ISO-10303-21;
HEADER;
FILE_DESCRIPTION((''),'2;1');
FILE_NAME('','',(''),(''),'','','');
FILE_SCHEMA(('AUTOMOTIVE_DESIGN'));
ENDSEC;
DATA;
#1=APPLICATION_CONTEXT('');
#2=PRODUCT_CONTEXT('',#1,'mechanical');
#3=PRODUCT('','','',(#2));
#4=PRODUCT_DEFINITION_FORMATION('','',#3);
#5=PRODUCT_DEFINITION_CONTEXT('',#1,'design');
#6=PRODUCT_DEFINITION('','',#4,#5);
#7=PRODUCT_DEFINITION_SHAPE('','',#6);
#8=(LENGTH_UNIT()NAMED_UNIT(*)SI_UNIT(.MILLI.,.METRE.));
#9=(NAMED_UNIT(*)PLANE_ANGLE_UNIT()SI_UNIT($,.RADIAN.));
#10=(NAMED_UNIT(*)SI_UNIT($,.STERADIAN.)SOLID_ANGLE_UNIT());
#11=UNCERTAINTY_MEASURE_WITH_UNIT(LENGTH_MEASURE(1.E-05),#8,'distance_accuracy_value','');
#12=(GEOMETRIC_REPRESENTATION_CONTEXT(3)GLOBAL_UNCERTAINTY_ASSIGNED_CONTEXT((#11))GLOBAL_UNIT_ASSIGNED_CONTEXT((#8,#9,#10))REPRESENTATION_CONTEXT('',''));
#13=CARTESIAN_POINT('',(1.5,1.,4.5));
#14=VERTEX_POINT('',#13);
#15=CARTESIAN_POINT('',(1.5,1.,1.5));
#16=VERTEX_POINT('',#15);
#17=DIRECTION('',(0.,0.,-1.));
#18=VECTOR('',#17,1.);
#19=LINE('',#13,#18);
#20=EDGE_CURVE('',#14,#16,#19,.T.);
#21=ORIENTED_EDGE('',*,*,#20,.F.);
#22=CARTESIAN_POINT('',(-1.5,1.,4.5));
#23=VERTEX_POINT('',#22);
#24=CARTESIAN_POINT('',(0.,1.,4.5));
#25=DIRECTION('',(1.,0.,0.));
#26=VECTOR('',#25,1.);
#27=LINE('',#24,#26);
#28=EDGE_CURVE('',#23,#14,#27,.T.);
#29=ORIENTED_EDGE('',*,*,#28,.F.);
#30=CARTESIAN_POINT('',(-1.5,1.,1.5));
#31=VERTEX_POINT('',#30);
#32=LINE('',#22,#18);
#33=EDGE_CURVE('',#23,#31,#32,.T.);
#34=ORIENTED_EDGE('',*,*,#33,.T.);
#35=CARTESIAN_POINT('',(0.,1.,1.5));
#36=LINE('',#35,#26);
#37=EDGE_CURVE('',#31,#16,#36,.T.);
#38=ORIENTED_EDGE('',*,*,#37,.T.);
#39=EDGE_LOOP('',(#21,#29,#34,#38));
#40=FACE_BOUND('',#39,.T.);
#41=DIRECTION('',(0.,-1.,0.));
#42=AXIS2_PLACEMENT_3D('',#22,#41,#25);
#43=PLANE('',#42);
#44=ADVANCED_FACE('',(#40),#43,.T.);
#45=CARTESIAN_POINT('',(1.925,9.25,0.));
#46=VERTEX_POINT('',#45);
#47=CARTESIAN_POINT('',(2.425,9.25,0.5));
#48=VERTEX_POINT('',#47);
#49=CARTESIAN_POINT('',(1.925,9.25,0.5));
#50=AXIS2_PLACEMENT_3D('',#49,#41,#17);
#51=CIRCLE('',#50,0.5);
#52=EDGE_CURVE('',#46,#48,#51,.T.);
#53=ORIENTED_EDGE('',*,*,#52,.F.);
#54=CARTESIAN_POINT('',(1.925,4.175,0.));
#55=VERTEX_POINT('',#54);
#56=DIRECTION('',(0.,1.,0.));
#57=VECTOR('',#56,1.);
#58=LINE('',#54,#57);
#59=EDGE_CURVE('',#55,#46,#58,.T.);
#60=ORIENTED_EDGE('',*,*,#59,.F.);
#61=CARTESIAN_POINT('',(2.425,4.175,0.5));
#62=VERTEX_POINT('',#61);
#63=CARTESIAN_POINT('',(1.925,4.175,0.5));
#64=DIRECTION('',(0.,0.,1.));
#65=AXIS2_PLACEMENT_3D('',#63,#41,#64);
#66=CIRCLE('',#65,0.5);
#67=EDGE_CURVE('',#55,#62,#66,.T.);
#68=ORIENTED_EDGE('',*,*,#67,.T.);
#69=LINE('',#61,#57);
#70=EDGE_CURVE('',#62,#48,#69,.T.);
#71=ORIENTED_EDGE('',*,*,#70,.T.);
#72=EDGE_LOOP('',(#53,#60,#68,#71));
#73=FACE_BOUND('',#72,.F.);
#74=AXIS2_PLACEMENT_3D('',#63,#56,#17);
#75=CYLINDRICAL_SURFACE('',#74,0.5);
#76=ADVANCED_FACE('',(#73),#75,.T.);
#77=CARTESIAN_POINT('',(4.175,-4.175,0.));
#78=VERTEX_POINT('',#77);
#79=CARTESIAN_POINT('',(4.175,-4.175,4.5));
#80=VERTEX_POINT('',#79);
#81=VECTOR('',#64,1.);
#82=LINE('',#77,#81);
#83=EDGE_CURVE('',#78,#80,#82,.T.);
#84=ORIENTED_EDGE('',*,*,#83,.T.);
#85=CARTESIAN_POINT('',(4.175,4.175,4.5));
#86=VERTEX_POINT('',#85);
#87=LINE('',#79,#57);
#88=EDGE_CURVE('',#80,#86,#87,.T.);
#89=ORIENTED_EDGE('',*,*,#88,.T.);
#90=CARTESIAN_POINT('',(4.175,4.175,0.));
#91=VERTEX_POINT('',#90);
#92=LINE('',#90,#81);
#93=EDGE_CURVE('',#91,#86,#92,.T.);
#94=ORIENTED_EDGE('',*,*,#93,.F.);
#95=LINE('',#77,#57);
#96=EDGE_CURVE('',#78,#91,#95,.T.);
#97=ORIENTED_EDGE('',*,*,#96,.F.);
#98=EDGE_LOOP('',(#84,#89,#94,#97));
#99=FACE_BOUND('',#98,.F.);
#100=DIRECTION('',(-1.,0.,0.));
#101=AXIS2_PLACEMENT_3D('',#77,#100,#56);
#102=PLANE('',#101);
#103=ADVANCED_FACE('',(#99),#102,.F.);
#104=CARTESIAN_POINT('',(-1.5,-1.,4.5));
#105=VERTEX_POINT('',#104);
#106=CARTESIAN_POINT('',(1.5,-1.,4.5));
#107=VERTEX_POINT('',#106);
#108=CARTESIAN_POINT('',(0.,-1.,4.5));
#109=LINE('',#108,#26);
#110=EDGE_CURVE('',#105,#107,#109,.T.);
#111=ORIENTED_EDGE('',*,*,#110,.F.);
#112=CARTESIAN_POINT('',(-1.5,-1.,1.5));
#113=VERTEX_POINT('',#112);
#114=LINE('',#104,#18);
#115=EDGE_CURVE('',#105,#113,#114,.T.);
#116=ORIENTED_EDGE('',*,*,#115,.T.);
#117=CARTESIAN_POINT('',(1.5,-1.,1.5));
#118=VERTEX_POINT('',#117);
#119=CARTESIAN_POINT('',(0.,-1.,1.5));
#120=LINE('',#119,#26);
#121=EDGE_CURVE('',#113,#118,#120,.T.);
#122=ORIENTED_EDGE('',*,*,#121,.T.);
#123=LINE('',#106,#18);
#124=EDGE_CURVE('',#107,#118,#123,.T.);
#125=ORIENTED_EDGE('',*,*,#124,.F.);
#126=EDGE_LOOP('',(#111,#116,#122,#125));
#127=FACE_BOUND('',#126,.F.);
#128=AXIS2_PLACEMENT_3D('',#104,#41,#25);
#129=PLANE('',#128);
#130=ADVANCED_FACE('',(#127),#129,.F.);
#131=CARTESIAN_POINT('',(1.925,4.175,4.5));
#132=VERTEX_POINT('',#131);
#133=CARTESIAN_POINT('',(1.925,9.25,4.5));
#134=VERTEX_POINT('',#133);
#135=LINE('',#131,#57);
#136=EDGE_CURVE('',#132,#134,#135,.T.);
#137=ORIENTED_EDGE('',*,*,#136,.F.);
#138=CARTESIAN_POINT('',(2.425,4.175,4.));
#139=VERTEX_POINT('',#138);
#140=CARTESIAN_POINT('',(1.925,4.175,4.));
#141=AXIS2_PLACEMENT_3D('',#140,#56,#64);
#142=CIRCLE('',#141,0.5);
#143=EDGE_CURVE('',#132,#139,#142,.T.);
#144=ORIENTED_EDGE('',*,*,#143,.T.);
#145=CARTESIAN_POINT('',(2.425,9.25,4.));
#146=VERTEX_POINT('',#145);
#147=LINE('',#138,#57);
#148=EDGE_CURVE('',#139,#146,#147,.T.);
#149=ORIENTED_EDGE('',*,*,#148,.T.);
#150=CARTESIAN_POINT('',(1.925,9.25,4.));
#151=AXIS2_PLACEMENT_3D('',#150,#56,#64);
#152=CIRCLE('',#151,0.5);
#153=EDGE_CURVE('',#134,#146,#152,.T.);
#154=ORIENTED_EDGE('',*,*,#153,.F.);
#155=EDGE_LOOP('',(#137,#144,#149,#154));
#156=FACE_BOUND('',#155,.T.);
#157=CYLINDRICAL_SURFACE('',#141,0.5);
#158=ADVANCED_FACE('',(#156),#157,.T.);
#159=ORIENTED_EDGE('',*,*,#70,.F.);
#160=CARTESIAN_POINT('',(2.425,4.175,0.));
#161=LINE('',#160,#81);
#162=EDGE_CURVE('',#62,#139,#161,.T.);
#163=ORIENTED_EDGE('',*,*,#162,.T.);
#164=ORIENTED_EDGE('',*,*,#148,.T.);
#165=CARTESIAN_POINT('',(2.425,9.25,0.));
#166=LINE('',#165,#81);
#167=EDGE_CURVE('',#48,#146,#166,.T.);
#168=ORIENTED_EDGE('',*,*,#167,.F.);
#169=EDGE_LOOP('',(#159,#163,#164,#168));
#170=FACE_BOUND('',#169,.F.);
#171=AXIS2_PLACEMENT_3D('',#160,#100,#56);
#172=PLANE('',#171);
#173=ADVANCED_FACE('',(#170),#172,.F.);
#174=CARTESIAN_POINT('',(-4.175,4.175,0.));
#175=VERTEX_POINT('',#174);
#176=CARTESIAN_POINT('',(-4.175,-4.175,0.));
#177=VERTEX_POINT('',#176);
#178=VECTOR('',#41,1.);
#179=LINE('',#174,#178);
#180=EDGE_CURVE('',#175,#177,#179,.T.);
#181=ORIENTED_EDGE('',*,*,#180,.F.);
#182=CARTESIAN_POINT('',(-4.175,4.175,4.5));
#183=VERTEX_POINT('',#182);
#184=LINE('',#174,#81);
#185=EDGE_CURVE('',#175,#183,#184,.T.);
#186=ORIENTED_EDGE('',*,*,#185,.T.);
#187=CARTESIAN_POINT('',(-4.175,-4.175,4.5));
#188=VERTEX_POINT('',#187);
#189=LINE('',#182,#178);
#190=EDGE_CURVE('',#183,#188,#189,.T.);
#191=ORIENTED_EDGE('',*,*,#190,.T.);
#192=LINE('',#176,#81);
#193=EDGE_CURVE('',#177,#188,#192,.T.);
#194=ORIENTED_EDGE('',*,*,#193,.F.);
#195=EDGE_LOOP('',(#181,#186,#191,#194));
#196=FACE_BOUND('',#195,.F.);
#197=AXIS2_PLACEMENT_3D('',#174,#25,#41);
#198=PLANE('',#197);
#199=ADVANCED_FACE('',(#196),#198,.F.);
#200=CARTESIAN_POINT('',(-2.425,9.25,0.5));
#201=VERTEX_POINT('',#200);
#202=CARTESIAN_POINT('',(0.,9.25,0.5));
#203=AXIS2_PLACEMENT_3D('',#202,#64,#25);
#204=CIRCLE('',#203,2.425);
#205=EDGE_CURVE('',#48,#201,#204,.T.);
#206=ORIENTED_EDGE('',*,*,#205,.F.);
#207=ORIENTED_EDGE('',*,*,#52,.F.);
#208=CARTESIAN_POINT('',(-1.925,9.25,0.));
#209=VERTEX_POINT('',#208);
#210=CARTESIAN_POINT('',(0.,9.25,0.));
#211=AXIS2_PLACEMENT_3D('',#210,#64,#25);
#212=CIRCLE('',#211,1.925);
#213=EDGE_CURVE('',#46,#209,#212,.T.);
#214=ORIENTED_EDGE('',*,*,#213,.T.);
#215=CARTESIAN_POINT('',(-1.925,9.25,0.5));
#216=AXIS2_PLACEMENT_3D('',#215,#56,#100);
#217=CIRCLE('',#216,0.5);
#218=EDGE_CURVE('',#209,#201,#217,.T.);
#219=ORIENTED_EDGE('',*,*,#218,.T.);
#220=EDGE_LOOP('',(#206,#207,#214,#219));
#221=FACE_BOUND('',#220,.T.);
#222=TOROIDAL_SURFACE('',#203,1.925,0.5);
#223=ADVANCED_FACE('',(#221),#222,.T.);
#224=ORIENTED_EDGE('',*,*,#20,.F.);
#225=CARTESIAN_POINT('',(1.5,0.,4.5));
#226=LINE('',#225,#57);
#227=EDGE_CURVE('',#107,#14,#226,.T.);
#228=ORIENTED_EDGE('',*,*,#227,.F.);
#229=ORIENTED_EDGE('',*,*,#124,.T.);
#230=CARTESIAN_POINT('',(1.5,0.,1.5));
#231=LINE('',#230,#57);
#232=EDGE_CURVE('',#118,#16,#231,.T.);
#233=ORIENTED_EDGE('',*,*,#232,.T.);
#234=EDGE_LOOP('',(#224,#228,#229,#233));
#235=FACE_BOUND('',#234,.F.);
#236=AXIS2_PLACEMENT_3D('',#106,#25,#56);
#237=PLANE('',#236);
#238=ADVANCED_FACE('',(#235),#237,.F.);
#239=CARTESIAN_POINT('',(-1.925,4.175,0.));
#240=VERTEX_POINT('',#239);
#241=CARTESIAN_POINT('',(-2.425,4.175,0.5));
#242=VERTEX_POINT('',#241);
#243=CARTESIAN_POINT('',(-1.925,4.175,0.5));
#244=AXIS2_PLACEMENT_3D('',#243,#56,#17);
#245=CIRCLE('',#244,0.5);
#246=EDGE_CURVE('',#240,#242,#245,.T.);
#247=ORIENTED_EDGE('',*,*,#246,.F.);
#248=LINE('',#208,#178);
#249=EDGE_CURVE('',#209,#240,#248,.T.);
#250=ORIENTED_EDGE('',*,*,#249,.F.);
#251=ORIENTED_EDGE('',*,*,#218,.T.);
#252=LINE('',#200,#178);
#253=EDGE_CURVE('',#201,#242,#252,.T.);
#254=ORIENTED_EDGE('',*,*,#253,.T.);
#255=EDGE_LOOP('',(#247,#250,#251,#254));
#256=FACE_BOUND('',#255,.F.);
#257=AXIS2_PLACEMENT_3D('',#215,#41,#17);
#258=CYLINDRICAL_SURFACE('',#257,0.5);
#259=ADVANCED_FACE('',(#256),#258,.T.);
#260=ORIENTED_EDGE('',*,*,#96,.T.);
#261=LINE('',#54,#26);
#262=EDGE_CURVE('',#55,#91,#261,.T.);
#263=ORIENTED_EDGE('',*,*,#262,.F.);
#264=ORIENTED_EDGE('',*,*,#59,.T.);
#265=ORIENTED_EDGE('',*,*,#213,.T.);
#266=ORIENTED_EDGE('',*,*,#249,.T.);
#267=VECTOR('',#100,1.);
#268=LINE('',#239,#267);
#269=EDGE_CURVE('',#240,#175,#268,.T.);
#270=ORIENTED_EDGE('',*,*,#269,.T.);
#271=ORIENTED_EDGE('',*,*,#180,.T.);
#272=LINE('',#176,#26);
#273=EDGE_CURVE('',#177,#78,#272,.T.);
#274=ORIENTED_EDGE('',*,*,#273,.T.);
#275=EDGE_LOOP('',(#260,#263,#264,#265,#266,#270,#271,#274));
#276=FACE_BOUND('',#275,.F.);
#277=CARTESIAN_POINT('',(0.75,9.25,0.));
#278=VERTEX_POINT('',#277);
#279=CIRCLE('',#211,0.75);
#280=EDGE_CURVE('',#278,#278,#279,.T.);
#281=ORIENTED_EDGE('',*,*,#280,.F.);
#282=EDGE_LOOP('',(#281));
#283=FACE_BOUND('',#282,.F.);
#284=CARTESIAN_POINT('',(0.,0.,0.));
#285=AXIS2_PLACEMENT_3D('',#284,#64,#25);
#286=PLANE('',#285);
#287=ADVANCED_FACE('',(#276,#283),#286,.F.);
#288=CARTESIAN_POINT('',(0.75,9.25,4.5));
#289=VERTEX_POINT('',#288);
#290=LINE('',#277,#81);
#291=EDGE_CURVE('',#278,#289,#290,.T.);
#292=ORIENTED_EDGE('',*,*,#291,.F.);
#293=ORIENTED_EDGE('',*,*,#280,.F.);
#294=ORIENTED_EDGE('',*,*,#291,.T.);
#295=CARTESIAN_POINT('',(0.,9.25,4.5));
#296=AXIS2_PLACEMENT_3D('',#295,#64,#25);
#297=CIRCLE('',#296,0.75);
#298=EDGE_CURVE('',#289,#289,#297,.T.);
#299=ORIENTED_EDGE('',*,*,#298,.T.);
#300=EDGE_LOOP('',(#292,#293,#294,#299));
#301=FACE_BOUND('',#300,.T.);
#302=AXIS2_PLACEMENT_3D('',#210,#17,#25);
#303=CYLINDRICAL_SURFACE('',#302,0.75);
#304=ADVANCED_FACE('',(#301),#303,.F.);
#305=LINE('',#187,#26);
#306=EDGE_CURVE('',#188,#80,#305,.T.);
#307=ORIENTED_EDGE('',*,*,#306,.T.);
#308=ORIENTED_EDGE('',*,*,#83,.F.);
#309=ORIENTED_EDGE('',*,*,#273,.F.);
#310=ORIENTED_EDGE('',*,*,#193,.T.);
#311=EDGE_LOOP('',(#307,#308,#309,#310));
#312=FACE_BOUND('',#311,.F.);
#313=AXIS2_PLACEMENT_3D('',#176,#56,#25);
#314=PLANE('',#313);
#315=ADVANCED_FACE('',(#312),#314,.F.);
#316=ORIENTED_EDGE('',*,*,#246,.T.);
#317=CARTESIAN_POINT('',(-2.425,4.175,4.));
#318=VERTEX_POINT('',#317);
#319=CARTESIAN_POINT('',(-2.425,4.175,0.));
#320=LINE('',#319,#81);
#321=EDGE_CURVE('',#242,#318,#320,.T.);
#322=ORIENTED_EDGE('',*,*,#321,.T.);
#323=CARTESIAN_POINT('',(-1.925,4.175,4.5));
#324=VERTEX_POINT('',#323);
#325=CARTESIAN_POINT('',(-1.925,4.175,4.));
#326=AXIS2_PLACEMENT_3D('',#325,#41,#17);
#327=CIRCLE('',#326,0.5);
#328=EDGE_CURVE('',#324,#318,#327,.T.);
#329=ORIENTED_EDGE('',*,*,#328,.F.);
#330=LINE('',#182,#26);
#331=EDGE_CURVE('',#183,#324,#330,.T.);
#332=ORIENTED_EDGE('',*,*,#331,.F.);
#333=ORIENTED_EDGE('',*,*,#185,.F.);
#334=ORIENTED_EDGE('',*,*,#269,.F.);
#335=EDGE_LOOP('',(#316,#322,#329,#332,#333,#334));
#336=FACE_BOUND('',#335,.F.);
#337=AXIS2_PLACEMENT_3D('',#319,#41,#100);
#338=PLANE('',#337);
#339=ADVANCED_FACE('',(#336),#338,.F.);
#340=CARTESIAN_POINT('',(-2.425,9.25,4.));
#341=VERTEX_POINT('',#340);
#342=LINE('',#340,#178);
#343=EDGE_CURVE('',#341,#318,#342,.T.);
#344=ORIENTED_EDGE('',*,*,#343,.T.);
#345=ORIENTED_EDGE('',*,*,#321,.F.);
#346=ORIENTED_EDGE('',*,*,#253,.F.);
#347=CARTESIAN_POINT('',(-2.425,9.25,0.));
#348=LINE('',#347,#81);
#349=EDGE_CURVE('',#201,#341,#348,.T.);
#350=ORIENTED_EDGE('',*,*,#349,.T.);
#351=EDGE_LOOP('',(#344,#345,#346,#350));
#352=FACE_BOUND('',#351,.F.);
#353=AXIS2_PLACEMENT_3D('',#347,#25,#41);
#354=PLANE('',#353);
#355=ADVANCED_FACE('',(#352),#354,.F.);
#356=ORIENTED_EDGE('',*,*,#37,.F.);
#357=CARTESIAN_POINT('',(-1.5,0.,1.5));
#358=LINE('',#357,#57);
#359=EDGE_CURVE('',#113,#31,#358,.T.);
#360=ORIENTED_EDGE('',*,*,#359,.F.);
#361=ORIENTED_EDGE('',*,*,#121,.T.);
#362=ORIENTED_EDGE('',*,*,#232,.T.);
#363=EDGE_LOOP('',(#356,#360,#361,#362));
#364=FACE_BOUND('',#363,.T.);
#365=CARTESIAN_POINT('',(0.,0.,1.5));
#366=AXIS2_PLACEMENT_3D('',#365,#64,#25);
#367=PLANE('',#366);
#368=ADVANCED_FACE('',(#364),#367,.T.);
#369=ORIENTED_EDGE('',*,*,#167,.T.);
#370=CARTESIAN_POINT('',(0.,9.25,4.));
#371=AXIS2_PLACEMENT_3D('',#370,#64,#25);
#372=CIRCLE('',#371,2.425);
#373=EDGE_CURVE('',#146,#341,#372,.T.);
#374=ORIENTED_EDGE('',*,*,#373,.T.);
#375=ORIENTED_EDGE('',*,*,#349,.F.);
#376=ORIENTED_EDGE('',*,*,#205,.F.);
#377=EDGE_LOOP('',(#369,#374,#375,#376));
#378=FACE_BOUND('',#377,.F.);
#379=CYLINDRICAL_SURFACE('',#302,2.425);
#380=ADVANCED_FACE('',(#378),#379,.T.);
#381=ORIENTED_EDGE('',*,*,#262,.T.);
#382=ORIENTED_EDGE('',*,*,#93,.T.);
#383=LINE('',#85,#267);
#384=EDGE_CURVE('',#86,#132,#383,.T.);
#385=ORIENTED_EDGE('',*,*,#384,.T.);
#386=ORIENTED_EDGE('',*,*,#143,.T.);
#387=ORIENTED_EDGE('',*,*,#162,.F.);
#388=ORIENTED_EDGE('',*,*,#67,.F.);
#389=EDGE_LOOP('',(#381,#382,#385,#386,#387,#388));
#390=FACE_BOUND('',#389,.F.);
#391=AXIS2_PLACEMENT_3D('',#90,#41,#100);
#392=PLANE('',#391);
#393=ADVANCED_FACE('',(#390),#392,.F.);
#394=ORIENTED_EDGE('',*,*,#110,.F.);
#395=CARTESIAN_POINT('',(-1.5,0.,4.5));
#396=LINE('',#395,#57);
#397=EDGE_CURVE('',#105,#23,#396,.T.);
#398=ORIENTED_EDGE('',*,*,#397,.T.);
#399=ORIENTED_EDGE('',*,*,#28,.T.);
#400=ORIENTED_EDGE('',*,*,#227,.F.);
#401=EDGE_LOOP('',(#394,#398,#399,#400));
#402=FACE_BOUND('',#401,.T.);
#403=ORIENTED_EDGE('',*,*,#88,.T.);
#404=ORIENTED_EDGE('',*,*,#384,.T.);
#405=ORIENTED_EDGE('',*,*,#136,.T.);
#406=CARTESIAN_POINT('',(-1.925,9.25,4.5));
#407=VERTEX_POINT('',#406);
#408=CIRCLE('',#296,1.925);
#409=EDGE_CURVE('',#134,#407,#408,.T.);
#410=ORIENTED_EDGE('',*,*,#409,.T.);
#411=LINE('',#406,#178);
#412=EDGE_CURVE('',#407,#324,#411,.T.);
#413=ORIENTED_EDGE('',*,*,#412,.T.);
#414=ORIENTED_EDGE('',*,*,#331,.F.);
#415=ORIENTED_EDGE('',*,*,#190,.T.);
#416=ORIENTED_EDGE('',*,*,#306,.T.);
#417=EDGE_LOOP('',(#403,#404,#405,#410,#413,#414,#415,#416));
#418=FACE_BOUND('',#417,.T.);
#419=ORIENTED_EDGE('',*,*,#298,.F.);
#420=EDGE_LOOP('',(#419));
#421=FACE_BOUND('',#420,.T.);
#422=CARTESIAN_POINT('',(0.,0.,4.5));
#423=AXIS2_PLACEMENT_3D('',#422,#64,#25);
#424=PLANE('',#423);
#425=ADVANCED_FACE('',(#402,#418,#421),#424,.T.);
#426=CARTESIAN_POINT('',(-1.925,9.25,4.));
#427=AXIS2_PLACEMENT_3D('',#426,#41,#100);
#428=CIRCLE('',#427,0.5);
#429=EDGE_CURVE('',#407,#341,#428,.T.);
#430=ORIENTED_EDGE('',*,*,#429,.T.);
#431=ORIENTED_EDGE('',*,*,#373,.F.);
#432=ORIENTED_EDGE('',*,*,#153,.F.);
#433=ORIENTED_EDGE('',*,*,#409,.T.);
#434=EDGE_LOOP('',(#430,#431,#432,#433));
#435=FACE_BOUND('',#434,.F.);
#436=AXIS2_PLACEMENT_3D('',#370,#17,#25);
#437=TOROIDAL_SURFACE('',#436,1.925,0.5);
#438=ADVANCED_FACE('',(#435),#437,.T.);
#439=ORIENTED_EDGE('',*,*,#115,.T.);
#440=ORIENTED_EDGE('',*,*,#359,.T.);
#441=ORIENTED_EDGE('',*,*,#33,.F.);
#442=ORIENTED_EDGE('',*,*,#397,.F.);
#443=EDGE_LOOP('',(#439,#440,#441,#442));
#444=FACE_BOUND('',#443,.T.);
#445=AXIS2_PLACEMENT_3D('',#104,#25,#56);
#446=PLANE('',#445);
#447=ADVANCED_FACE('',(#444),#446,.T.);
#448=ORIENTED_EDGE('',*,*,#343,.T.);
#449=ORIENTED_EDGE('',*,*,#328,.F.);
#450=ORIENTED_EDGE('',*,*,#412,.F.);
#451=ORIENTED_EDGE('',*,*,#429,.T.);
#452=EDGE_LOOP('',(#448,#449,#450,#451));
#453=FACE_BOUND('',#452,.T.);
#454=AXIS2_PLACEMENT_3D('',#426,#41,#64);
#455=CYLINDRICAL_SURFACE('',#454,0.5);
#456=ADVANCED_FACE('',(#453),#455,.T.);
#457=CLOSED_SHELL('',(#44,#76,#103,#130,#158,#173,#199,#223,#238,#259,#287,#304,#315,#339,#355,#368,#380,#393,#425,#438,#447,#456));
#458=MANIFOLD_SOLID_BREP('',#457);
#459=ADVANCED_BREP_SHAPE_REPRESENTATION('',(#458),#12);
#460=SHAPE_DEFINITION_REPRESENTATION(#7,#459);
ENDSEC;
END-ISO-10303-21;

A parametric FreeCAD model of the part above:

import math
import FreeCAD as App
import Part
import Sketcher

V = App.Vector


def edges_at(feature, points):
    """Names of the edges that pass closest to the given points."""
    edges = feature.Shape.Edges
    near = lambda p: min(range(len(edges)), key=lambda i: edges[i].distToShape(Part.Vertex(*p))[0])
    return sorted({f"Edge{near(p) + 1}" for p in points})


def add_polygon(sketch, points):
    """Adds a closed chain of lines whose ends are joined by coincident constraints."""
    first, n = sketch.GeometryCount, len(points)
    for a, b in zip(points, points[1:] + points[:1]):
        sketch.addGeometry(Part.LineSegment(App.Vector(*a, 0), App.Vector(*b, 0)), False)
    for i in range(n):
        sketch.addConstraint(Sketcher.Constraint("Coincident", first + i, 2, first + (i + 1) % n, 1))

doc = App.newDocument("Part")
body = doc.addObject("PartDesign::Body", "Body")

# Sketch on XY plane
sketch1 = body.newObject("Sketcher::SketchObject", "Sketch")
sketch1.AttachmentSupport = (doc.getObject("XY_Plane"), [""])
sketch1.MapMode = "FlatFace"
sketch1.addGeometry([
    Part.LineSegment(V(-4.2, 4.2, 0), V(-4.2, -4.2, 0)),  # 0
    Part.LineSegment(V(-4.2, -4.2, 0), V(4.2, -4.2, 0)),  # 1
    Part.LineSegment(V(4.2, -4.2, 0), V(4.2, 4.2, 0)),  # 2
    Part.LineSegment(V(4.2, 4.2, 0), V(2.4, 4.2, 0)),  # 3
    Part.LineSegment(V(2.4, 4.2, 0), V(2.4, 9.2, 0)),  # 4
    Part.ArcOfCircle(Part.Circle(V(0, 9.2, 0), V(0, 0, 1), 2.4), math.radians(0), math.radians(180)),  # 5
    Part.LineSegment(V(-2.4, 9.2, 0), V(-2.4, 4.2, 0)),  # 6
    Part.LineSegment(V(-2.4, 4.2, 0), V(-4.2, 4.2, 0)),  # 7
    Part.Circle(V(0, 9.2, 0), V(0, 0, 1), 0.8),  # 8
], False)
sketch1.addConstraint([
    Sketcher.Constraint("Coincident", 0, 2, 1, 1),
    Sketcher.Constraint("Coincident", 1, 2, 2, 1),
    Sketcher.Constraint("Coincident", 2, 2, 3, 1),
    Sketcher.Constraint("Coincident", 3, 2, 4, 1),
    Sketcher.Constraint("Tangent", 4, 2, 5, 1),
    Sketcher.Constraint("Tangent", 5, 2, 6, 1),
    Sketcher.Constraint("Coincident", 6, 2, 7, 1),
    Sketcher.Constraint("Coincident", 7, 2, 0, 1),
    Sketcher.Constraint("Vertical", 0),
    Sketcher.Constraint("Horizontal", 1),
    Sketcher.Constraint("Vertical", 2),
    Sketcher.Constraint("Horizontal", 3),
    Sketcher.Constraint("Vertical", 4),
    Sketcher.Constraint("Vertical", 6),
    Sketcher.Constraint("Horizontal", 7),
    Sketcher.Constraint("Coincident", 8, 3, 5, 3),
    Sketcher.Constraint("Symmetric", 0, 2, 2, 2, -1, 1),
    Sketcher.Constraint("Symmetric", 3, 2, 6, 2, -2),
    Sketcher.Constraint("Equal", 1, 0),
    Sketcher.Constraint("Diameter", 8, 1.5),
    Sketcher.Constraint("Radius", 5, 2.425),
    Sketcher.Constraint("DistanceX", 1, 1, 1, 2, 8.35),
    Sketcher.Constraint("DistanceY", 4, 1, 4, 2, 5.075),
])
pad1 = body.newObject("PartDesign::Pad", "Pad")
pad1.Profile = sketch1
pad1.Length = 4.5

# Sketch on XY plane
sketch2 = body.newObject("Sketcher::SketchObject", "Sketch001")
sketch2.AttachmentSupport = (doc.getObject("XY_Plane"), [""])
sketch2.MapMode = "FlatFace"
sketch2.AttachmentOffset = App.Placement(V(0, 0, 4.5), App.Rotation())
add_polygon(sketch2, [(-1.5, 1), (-1.5, -1), (1.5, -1), (1.5, 1)])  # lines 0-3
sketch2.addConstraint([
    Sketcher.Constraint("Vertical", 0),
    Sketcher.Constraint("Horizontal", 1),
    Sketcher.Constraint("Vertical", 2),
    Sketcher.Constraint("Horizontal", 3),
    Sketcher.Constraint("Symmetric", 0, 2, 2, 2, -1, 1),
    Sketcher.Constraint("DistanceX", 1, 1, 1, 2, 3.0),
    Sketcher.Constraint("DistanceY", 0, 2, 0, 1, 2.0),
])
pocket1 = body.newObject("PartDesign::Pocket", "Pocket")
pocket1.Profile = sketch2
pocket1.Length = 3
doc.recompute()

fillet = body.newObject("PartDesign::Fillet", "Fillet")
fillet.Base = (pocket1, edges_at(pocket1, [
    (0, 11.675, 0),
    (2.425, 6.713, 0),
    (-2.425, 6.713, 0),
    (0, 11.675, 4.5),
    (2.425, 6.713, 4.5),
    (-2.425, 6.713, 4.5),
]))
fillet.Radius = 0.5

doc.recompute()
